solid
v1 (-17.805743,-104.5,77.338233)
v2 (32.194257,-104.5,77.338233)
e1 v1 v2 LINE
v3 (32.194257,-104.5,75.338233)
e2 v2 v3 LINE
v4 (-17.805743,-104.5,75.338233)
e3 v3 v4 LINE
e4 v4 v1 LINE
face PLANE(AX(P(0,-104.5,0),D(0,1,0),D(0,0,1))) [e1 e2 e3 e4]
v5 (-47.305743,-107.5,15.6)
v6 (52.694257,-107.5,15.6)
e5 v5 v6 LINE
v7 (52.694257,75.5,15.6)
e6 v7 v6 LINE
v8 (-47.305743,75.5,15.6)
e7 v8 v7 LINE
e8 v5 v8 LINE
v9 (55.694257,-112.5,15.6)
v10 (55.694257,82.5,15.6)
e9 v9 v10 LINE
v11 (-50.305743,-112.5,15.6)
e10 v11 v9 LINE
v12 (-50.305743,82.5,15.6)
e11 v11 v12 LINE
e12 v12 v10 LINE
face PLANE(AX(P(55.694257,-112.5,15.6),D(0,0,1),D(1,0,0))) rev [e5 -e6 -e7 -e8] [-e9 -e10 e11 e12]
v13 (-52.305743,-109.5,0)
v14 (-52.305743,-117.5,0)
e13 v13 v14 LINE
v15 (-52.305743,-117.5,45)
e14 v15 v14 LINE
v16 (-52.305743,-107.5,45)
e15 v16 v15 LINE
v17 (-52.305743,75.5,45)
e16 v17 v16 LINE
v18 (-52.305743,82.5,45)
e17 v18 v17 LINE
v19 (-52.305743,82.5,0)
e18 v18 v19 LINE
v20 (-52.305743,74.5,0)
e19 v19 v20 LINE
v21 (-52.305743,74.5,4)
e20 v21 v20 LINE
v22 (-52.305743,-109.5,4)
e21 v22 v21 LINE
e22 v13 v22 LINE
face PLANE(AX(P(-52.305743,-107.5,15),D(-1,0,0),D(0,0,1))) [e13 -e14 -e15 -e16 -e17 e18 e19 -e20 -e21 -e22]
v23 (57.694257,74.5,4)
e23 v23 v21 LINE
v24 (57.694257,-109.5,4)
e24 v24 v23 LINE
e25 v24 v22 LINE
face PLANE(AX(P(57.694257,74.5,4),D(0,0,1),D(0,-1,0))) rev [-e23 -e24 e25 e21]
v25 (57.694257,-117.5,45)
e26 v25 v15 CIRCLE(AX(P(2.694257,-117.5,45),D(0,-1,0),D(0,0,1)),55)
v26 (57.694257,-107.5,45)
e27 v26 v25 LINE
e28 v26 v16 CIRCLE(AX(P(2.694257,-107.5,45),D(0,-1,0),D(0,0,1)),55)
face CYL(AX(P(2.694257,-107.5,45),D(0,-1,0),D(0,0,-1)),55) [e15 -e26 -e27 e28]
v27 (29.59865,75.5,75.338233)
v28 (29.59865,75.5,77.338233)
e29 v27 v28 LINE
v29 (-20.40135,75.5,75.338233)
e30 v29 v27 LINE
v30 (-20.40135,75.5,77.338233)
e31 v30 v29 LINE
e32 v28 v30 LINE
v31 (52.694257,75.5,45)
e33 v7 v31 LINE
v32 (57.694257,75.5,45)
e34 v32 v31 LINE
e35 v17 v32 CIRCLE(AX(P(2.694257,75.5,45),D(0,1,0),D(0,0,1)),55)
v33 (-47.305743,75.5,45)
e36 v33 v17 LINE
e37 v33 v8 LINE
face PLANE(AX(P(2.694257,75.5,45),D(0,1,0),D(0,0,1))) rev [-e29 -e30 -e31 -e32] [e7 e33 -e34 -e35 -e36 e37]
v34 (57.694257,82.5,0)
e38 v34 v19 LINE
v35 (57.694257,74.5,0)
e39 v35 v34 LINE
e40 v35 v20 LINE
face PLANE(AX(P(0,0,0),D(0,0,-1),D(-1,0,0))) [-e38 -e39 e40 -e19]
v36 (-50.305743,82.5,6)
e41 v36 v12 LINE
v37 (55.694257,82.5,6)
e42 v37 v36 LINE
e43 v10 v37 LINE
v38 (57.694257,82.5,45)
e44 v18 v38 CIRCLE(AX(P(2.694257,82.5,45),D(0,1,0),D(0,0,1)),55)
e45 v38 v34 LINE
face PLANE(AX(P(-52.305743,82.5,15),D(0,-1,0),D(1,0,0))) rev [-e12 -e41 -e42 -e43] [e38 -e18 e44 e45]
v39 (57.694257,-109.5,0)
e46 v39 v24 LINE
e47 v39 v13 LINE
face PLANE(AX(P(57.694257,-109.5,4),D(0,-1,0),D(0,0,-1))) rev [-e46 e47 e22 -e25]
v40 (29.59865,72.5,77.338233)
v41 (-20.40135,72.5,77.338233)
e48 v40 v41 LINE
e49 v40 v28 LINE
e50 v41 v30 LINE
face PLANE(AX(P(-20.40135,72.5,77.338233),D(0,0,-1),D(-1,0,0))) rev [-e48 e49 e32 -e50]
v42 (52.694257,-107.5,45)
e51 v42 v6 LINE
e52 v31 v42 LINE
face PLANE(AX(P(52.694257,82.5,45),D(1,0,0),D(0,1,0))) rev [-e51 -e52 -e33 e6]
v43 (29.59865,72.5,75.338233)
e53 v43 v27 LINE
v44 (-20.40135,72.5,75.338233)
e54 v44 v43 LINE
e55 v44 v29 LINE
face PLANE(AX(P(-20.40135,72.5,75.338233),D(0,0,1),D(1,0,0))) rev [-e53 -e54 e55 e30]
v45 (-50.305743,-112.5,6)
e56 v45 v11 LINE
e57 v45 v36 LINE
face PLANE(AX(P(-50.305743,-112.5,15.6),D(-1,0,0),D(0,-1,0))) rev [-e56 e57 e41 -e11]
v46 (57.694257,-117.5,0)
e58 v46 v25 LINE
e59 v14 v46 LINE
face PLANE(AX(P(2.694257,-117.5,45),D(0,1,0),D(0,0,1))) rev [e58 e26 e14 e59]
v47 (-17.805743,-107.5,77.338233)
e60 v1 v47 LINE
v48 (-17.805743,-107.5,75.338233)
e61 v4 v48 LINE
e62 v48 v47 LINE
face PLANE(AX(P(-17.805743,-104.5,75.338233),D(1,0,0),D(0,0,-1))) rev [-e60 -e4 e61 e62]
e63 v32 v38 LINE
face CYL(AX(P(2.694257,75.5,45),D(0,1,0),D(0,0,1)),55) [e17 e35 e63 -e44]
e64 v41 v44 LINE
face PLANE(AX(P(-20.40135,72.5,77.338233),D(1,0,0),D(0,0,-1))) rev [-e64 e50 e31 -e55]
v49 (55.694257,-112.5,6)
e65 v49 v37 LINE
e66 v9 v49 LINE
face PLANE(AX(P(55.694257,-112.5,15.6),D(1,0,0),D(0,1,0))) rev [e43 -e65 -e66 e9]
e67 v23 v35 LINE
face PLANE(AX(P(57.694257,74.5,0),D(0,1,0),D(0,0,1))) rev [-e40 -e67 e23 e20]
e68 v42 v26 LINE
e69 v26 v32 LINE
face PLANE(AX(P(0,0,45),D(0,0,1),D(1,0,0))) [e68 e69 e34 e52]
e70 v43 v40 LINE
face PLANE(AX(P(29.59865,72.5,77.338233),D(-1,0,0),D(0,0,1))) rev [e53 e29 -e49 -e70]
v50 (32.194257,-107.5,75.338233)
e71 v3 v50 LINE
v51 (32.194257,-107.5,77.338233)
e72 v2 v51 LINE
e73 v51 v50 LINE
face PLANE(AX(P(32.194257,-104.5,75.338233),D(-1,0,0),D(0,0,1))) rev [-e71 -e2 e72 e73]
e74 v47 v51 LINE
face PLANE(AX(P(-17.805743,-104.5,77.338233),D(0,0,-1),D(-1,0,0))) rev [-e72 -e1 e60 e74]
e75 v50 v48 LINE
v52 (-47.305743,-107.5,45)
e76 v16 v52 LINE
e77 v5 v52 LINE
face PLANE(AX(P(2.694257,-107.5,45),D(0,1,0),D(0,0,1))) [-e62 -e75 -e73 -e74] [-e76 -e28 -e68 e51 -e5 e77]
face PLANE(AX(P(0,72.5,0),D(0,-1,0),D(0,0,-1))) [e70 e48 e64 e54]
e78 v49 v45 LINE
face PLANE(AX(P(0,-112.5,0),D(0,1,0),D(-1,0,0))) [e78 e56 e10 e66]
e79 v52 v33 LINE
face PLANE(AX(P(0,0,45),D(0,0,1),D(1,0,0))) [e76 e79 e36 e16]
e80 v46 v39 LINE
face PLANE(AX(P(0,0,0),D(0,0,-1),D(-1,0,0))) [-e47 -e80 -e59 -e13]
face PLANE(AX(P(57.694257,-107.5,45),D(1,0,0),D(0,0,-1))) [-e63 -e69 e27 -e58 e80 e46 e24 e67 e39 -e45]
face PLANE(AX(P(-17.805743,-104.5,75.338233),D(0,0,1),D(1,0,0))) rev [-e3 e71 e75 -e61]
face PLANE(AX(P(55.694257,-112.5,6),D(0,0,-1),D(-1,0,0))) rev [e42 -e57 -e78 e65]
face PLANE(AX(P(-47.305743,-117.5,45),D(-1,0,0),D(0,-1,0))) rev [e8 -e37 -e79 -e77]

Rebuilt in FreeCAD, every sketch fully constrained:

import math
import FreeCAD as App
import Part
import Sketcher
from FreeCAD import Vector
Q = App.Units.Quantity

doc = App.newDocument("Part")
body = doc.addObject("PartDesign::Body", "Body")

sketch1 = body.newObject("Sketcher::SketchObject", "Sketch")
sketch1.AttachmentSupport = (doc.getObject("XY_Plane"), [""])
sketch1.MapMode = "FlatFace"
sketch1.addGeometry([
    Part.LineSegment(Vector(-52, 82, 0), Vector(-52, -118, 0)),
    Part.LineSegment(Vector(-52, -118, 0), Vector(58, -118, 0)),
    Part.LineSegment(Vector(58, -118, 0), Vector(58, 82, 0)),
    Part.LineSegment(Vector(58, 82, 0), Vector(-52, 82, 0)),
], False)
sketch1.addConstraint([
    Sketcher.Constraint("Coincident", 0, 2, 1, 1),
    Sketcher.Constraint("Coincident", 1, 2, 2, 1),
    Sketcher.Constraint("Coincident", 2, 2, 3, 1),
    Sketcher.Constraint("Coincident", 3, 2, 0, 1),
    Sketcher.Constraint("Vertical", 0),
    Sketcher.Constraint("Horizontal", 1),
    Sketcher.Constraint("Vertical", 2),
    Sketcher.Constraint("Horizontal", 3),
    Sketcher.Constraint("DistanceX", 1, 1, 1, 2, Q("110 mm")),
    Sketcher.Constraint("DistanceY", 0, 2, 0, 1, Q("200 mm")),
    Sketcher.Constraint("DistanceY", 0, 2, -1, 1, Q("117.5 mm")),
    Sketcher.Constraint("DistanceX", 0, 2, -1, 1, Q("52.305743 mm")),
])
pad1 = body.newObject("PartDesign::Pad", "Pad")
pad1.Profile = sketch1
pad1.Length = 15

sketch2 = body.newObject("Sketcher::SketchObject", "Sketch001")
sketch2.AttachmentSupport = (doc.getObject("XY_Plane"), [""])
sketch2.MapMode = "FlatFace"
sketch2.AttachmentOffset = App.Placement(Vector(0, 0, 15), App.Rotation())
sketch2.addGeometry([
    Part.LineSegment(Vector(-52, 82, 0), Vector(-52, -118, 0)),
    Part.LineSegment(Vector(-52, -118, 0), Vector(-47, -118, 0)),
    Part.LineSegment(Vector(-47, -118, 0), Vector(-47, 82, 0)),
    Part.LineSegment(Vector(-47, 82, 0), Vector(-52, 82, 0)),
    Part.LineSegment(Vector(53, 82, 0), Vector(53, -118, 0)),
    Part.LineSegment(Vector(53, -118, 0), Vector(58, -118, 0)),
    Part.LineSegment(Vector(58, -118, 0), Vector(58, 82, 0)),
    Part.LineSegment(Vector(58, 82, 0), Vector(53, 82, 0)),
], False)
sketch2.addConstraint([
    Sketcher.Constraint("Coincident", 0, 2, 1, 1),
    Sketcher.Constraint("Coincident", 1, 2, 2, 1),
    Sketcher.Constraint("Coincident", 2, 2, 3, 1),
    Sketcher.Constraint("Coincident", 3, 2, 0, 1),
    Sketcher.Constraint("Coincident", 4, 2, 5, 1),
    Sketcher.Constraint("Coincident", 5, 2, 6, 1),
    Sketcher.Constraint("Coincident", 6, 2, 7, 1),
    Sketcher.Constraint("Coincident", 7, 2, 4, 1),
    Sketcher.Constraint("Vertical", 0),
    Sketcher.Constraint("Horizontal", 1),
    Sketcher.Constraint("Vertical", 2),
    Sketcher.Constraint("Horizontal", 3),
    Sketcher.Constraint("Vertical", 4),
    Sketcher.Constraint("Horizontal", 5),
    Sketcher.Constraint("Vertical", 6),
    Sketcher.Constraint("Horizontal", 7),
    Sketcher.Constraint("Horizontal", 1, 2, 4, 2),
    Sketcher.Constraint("Horizontal", 3, 2, 6, 2),
    Sketcher.Constraint("Equal", 3, 5),
    Sketcher.Constraint("DistanceX", 1, 1, 1, 2, Q("5 mm")),
    Sketcher.Constraint("DistanceY", 0, 2, 0, 1, Q("200 mm")),
    Sketcher.Constraint("DistanceX", 1, 2, 4, 2, Q("100 mm")),
    Sketcher.Constraint("DistanceY", 0, 2, -1, 1, Q("117.5 mm")),
    Sketcher.Constraint("DistanceX", 0, 2, -1, 1, Q("52.305743 mm")),
])
pad2 = body.newObject("PartDesign::Pad", "Pad001")
pad2.Profile = sketch2
pad2.Length = 30

sketch3 = body.newObject("Sketcher::SketchObject", "Sketch002")
sketch3.AttachmentSupport = (doc.getObject("XZ_Plane"), [""])
sketch3.MapMode = "FlatFace"
sketch3.AttachmentOffset = App.Placement(Vector(0, 0, -82.5), App.Rotation())
sketch3.addGeometry([
    Part.LineSegment(Vector(-52, 15, 0), Vector(-52, 45, 0)),
    Part.ArcOfCircle(Part.Circle(Vector(3, 45, 0), Vector(0, 0, 1), 55), math.radians(0), math.radians(180)),
    Part.LineSegment(Vector(58, 45, 0), Vector(58, 15, 0)),
    Part.LineSegment(Vector(58, 15, 0), Vector(-52, 15, 0)),
], False)
sketch3.addConstraint([
    Sketcher.Constraint("Tangent", 0, 2, 1, 2),
    Sketcher.Constraint("Tangent", 1, 1, 2, 1),
    Sketcher.Constraint("Coincident", 2, 2, 3, 1),
    Sketcher.Constraint("Coincident", 3, 2, 0, 1),
    Sketcher.Constraint("Vertical", 0),
    Sketcher.Constraint("Vertical", 2),
    Sketcher.Constraint("Horizontal", 3),
    Sketcher.Constraint("Radius", 1, Q("55 mm")),
    Sketcher.Constraint("DistanceY", 0, 1, 0, 2, Q("30 mm")),
    Sketcher.Constraint("DistanceY", -1, 1, 1, 3, Q("45 mm")),
    Sketcher.Constraint("DistanceX", -1, 1, 1, 3, Q("2.694257 mm")),
])
pad3 = body.newObject("PartDesign::Pad", "Pad002")
pad3.Profile = sketch3
pad3.Length = 7

sketch4 = body.newObject("Sketcher::SketchObject", "Sketch003")
sketch4.AttachmentSupport = (doc.getObject("YZ_Plane"), [""])
sketch4.MapMode = "FlatFace"
sketch4.AttachmentOffset = App.Placement(Vector(0, 0, -52.305743), App.Rotation())
sketch4.addGeometry([
    Part.LineSegment(Vector(74.5, 0, 0), Vector(-109.5, 0, 0)),
    Part.LineSegment(Vector(-109.5, 0, 0), Vector(-109.5, 4, 0)),
    Part.LineSegment(Vector(-109.5, 4, 0), Vector(74.5, 4, 0)),
    Part.LineSegment(Vector(74.5, 4, 0), Vector(74.5, 0, 0)),
], False)
sketch4.addConstraint([
    Sketcher.Constraint("Coincident", 0, 2, 1, 1),
    Sketcher.Constraint("Coincident", 1, 2, 2, 1),
    Sketcher.Constraint("Coincident", 2, 2, 3, 1),
    Sketcher.Constraint("Coincident", 3, 2, 0, 1),
    Sketcher.Constraint("Horizontal", 0),
    Sketcher.Constraint("Vertical", 1),
    Sketcher.Constraint("Horizontal", 2),
    Sketcher.Constraint("Vertical", 3),
    Sketcher.Constraint("PointOnObject", 0, 2, -1),
    Sketcher.Constraint("DistanceX", 0, 2, 0, 1, Q("184 mm")),
    Sketcher.Constraint("DistanceY", 1, 1, 1, 2, Q("4 mm")),
    Sketcher.Constraint("DistanceX", 0, 2, -1, 1, Q("109.5 mm")),
])
pocket1 = body.newObject("PartDesign::Pocket", "Pocket")
pocket1.Profile = sketch4
pocket1.Type = "ThroughAll"
pocket1.Reversed = True
body2 = doc.addObject("PartDesign::Body", "Body001")

sketch5 = body2.newObject("Sketcher::SketchObject", "Sketch004")
sketch5.AttachmentSupport = (doc.getObject("XZ_Plane001"), [""])
sketch5.MapMode = "FlatFace"
sketch5.AttachmentOffset = App.Placement(Vector(0, 0, 117.5), App.Rotation())
sketch5.addGeometry([
    Part.LineSegment(Vector(-52, 45, 0), Vector(-52, 15, 0)),
    Part.LineSegment(Vector(-52, 15, 0), Vector(58, 15, 0)),
    Part.LineSegment(Vector(58, 15, 0), Vector(58, 45, 0)),
    Part.ArcOfCircle(Part.Circle(Vector(3, 45, 0), Vector(0, 0, 1), 55), math.radians(0), math.radians(180)),
], False)
sketch5.addConstraint([
    Sketcher.Constraint("Coincident", 0, 2, 1, 1),
    Sketcher.Constraint("Coincident", 1, 2, 2, 1),
    Sketcher.Constraint("Tangent", 2, 2, 3, 1),
    Sketcher.Constraint("Tangent", 3, 2, 0, 1),
    Sketcher.Constraint("Vertical", 0),
    Sketcher.Constraint("Horizontal", 1),
    Sketcher.Constraint("Vertical", 2),
    Sketcher.Constraint("Radius", 3, Q("55 mm")),
    Sketcher.Constraint("DistanceY", 0, 2, 0, 1, Q("30 mm")),
    Sketcher.Constraint("DistanceY", -1, 1, 3, 3, Q("45 mm")),
    Sketcher.Constraint("DistanceX", -1, 1, 3, 3, Q("2.694257 mm")),
])
pad4 = body2.newObject("PartDesign::Pad", "Pad003")
pad4.Profile = sketch5
pad4.Length = 10
pad4.Reversed = True
doc.recompute()

boolean = body2.newObject("PartDesign::Boolean", "Boolean")
boolean.Type = "Fuse"
boolean.addObjects([body])

sketch6 = body2.newObject("Sketcher::SketchObject", "Sketch005")
sketch6.AttachmentSupport = (doc.getObject("XZ_Plane001"), [""])
sketch6.MapMode = "FlatFace"
sketch6.AttachmentOffset = App.Placement(Vector(0, 0, 107.5), App.Rotation())
sketch6.addGeometry([
    Part.LineSegment(Vector(-17.8, 75.3, 0), Vector(-17.8, 77.3, 0)),
    Part.LineSegment(Vector(-17.8, 77.3, 0), Vector(32.2, 77.3, 0)),
    Part.LineSegment(Vector(32.2, 77.3, 0), Vector(32.2, 75.3, 0)),
    Part.LineSegment(Vector(32.2, 75.3, 0), Vector(-17.8, 75.3, 0)),
], False)
sketch6.addConstraint([
    Sketcher.Constraint("Coincident", 0, 2, 1, 1),
    Sketcher.Constraint("Coincident", 1, 2, 2, 1),
    Sketcher.Constraint("Coincident", 2, 2, 3, 1),
    Sketcher.Constraint("Coincident", 3, 2, 0, 1),
    Sketcher.Constraint("Vertical", 0),
    Sketcher.Constraint("Horizontal", 1),
    Sketcher.Constraint("Vertical", 2),
    Sketcher.Constraint("Horizontal", 3),
    Sketcher.Constraint("DistanceX", 1, 1, 1, 2, Q("50 mm")),
    Sketcher.Constraint("DistanceY", 0, 1, 0, 2, Q("2 mm")),
    Sketcher.Constraint("DistanceX", 0, 2, -1, 1, Q("17.805743 mm")),
    Sketcher.Constraint("DistanceY", -1, 1, 0, 2, Q("77.338233 mm")),
])
pad5 = body2.newObject("PartDesign::Pad", "Pad004")
pad5.Profile = sketch6
pad5.Length = 3
pad5.Reversed = True

sketch7 = body2.newObject("Sketcher::SketchObject", "Sketch006")
sketch7.AttachmentSupport = (doc.getObject("XZ_Plane001"), [""])
sketch7.MapMode = "FlatFace"
sketch7.AttachmentOffset = App.Placement(Vector(0, 0, -75.5), App.Rotation())
sketch7.addGeometry([
    Part.LineSegment(Vector(-20.4, 77.3, 0), Vector(-20.4, 75.3, 0)),
    Part.LineSegment(Vector(-20.4, 75.3, 0), Vector(29.6, 75.3, 0)),
    Part.LineSegment(Vector(29.6, 75.3, 0), Vector(29.6, 77.3, 0)),
    Part.LineSegment(Vector(29.6, 77.3, 0), Vector(-20.4, 77.3, 0)),
], False)
sketch7.addConstraint([
    Sketcher.Constraint("Coincident", 0, 2, 1, 1),
    Sketcher.Constraint("Coincident", 1, 2, 2, 1),
    Sketcher.Constraint("Coincident", 2, 2, 3, 1),
    Sketcher.Constraint("Coincident", 3, 2, 0, 1),
    Sketcher.Constraint("Vertical", 0),
    Sketcher.Constraint("Horizontal", 1),
    Sketcher.Constraint("Vertical", 2),
    Sketcher.Constraint("Horizontal", 3),
    Sketcher.Constraint("DistanceX", 1, 1, 1, 2, Q("50 mm")),
    Sketcher.Constraint("DistanceY", 0, 2, 0, 1, Q("2 mm")),
    Sketcher.Constraint("DistanceX", 0, 2, -1, 1, Q("20.40135 mm")),
    Sketcher.Constraint("DistanceY", -1, 1, 0, 2, Q("75.338233 mm")),
])
pad6 = body2.newObject("PartDesign::Pad", "Pad005")
pad6.Profile = sketch7
pad6.Length = 3

sketch8 = body2.newObject("Sketcher::SketchObject", "Sketch007")
sketch8.AttachmentSupport = (doc.getObject("XZ_Plane001"), [""])
sketch8.MapMode = "FlatFace"
sketch8.AttachmentOffset = App.Placement(Vector(0, 0, -82.5), App.Rotation())
sketch8.addGeometry([
    Part.LineSegment(Vector(-50, 6, 0), Vector(-50, 16, 0)),
    Part.LineSegment(Vector(-50, 16, 0), Vector(56, 16, 0)),
    Part.LineSegment(Vector(56, 16, 0), Vector(56, 6, 0)),
    Part.LineSegment(Vector(56, 6, 0), Vector(-50, 6, 0)),
], False)
sketch8.addConstraint([
    Sketcher.Constraint("Coincident", 0, 2, 1, 1),
    Sketcher.Constraint("Coincident", 1, 2, 2, 1),
    Sketcher.Constraint("Coincident", 2, 2, 3, 1),
    Sketcher.Constraint("Coincident", 3, 2, 0, 1),
    Sketcher.Constraint("Vertical", 0),
    Sketcher.Constraint("Horizontal", 1),
    Sketcher.Constraint("Vertical", 2),
    Sketcher.Constraint("Horizontal", 3),
    Sketcher.Constraint("DistanceX", 1, 1, 1, 2, Q("106 mm")),
    Sketcher.Constraint("DistanceY", 0, 1, 0, 2, Q("9.6 mm")),
    Sketcher.Constraint("DistanceY", -1, 1, 2, 2, Q("6 mm")),
    Sketcher.Constraint("DistanceX", 0, 2, -1, 1, Q("50.305743 mm")),
])
pocket2 = body2.newObject("PartDesign::Pocket", "Pocket001")
pocket2.Profile = sketch8
pocket2.Length = 195
pocket2.Reversed = True

doc.recompute()
